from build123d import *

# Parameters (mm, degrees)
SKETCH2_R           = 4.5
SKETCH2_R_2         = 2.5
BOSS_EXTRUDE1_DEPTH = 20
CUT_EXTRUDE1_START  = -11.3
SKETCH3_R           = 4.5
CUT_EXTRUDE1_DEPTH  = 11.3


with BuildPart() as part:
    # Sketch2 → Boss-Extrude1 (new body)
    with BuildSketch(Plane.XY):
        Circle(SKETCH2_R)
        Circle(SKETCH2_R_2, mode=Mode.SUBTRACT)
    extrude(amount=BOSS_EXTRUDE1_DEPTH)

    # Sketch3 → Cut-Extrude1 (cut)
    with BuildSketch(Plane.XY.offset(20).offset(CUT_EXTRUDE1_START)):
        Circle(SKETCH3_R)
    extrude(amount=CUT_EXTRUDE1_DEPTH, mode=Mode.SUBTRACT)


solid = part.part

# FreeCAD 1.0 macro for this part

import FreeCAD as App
import Part
import Sketcher
Q = App.Units.Quantity

doc = App.newDocument("Part")
body = doc.addObject("PartDesign::Body", "Body")

# Sketch on XY plane
sketch1 = body.newObject("Sketcher::SketchObject", "Sketch")
sketch1.AttachmentSupport = (doc.getObject("XY_Plane"), [""])
sketch1.MapMode = "FlatFace"
sketch1.addGeometry([
    Part.Circle(App.Vector(0, 0, 0), App.Vector(0, 0, 1), 4.5),
    Part.Circle(App.Vector(0, 0, 0), App.Vector(0, 0, 1), 2.5),
], False)
sketch1.addConstraint([
    Sketcher.Constraint("Coincident", 0, 3, -1, 1),
    Sketcher.Constraint("Coincident", 1, 3, -1, 1),
    Sketcher.Constraint("Diameter", 0, Q("9 mm")),
    Sketcher.Constraint("Diameter", 1, Q("5 mm")),
])
pad1 = body.newObject("PartDesign::Pad", "Pad")
pad1.Profile = sketch1
pad1.Length = 20

# Sketch on XY plane
sketch2 = body.newObject("Sketcher::SketchObject", "Sketch001")
sketch2.AttachmentSupport = (doc.getObject("XY_Plane"), [""])
sketch2.MapMode = "FlatFace"
sketch2.AttachmentOffset = App.Placement(App.Vector(0, 0, 8.7), App.Rotation())
sketch2.addGeometry(Part.Circle(App.Vector(0, 0, 0), App.Vector(0, 0, 1), 4.5), False)
sketch2.addConstraint([
    Sketcher.Constraint("Coincident", 0, 3, -1, 1),
    Sketcher.Constraint("Diameter", 0, Q("9 mm")),
])
pocket1 = body.newObject("PartDesign::Pocket", "Pocket")
pocket1.Profile = sketch2
pocket1.Length = 11.3
pocket1.Reversed = True

doc.recompute()
